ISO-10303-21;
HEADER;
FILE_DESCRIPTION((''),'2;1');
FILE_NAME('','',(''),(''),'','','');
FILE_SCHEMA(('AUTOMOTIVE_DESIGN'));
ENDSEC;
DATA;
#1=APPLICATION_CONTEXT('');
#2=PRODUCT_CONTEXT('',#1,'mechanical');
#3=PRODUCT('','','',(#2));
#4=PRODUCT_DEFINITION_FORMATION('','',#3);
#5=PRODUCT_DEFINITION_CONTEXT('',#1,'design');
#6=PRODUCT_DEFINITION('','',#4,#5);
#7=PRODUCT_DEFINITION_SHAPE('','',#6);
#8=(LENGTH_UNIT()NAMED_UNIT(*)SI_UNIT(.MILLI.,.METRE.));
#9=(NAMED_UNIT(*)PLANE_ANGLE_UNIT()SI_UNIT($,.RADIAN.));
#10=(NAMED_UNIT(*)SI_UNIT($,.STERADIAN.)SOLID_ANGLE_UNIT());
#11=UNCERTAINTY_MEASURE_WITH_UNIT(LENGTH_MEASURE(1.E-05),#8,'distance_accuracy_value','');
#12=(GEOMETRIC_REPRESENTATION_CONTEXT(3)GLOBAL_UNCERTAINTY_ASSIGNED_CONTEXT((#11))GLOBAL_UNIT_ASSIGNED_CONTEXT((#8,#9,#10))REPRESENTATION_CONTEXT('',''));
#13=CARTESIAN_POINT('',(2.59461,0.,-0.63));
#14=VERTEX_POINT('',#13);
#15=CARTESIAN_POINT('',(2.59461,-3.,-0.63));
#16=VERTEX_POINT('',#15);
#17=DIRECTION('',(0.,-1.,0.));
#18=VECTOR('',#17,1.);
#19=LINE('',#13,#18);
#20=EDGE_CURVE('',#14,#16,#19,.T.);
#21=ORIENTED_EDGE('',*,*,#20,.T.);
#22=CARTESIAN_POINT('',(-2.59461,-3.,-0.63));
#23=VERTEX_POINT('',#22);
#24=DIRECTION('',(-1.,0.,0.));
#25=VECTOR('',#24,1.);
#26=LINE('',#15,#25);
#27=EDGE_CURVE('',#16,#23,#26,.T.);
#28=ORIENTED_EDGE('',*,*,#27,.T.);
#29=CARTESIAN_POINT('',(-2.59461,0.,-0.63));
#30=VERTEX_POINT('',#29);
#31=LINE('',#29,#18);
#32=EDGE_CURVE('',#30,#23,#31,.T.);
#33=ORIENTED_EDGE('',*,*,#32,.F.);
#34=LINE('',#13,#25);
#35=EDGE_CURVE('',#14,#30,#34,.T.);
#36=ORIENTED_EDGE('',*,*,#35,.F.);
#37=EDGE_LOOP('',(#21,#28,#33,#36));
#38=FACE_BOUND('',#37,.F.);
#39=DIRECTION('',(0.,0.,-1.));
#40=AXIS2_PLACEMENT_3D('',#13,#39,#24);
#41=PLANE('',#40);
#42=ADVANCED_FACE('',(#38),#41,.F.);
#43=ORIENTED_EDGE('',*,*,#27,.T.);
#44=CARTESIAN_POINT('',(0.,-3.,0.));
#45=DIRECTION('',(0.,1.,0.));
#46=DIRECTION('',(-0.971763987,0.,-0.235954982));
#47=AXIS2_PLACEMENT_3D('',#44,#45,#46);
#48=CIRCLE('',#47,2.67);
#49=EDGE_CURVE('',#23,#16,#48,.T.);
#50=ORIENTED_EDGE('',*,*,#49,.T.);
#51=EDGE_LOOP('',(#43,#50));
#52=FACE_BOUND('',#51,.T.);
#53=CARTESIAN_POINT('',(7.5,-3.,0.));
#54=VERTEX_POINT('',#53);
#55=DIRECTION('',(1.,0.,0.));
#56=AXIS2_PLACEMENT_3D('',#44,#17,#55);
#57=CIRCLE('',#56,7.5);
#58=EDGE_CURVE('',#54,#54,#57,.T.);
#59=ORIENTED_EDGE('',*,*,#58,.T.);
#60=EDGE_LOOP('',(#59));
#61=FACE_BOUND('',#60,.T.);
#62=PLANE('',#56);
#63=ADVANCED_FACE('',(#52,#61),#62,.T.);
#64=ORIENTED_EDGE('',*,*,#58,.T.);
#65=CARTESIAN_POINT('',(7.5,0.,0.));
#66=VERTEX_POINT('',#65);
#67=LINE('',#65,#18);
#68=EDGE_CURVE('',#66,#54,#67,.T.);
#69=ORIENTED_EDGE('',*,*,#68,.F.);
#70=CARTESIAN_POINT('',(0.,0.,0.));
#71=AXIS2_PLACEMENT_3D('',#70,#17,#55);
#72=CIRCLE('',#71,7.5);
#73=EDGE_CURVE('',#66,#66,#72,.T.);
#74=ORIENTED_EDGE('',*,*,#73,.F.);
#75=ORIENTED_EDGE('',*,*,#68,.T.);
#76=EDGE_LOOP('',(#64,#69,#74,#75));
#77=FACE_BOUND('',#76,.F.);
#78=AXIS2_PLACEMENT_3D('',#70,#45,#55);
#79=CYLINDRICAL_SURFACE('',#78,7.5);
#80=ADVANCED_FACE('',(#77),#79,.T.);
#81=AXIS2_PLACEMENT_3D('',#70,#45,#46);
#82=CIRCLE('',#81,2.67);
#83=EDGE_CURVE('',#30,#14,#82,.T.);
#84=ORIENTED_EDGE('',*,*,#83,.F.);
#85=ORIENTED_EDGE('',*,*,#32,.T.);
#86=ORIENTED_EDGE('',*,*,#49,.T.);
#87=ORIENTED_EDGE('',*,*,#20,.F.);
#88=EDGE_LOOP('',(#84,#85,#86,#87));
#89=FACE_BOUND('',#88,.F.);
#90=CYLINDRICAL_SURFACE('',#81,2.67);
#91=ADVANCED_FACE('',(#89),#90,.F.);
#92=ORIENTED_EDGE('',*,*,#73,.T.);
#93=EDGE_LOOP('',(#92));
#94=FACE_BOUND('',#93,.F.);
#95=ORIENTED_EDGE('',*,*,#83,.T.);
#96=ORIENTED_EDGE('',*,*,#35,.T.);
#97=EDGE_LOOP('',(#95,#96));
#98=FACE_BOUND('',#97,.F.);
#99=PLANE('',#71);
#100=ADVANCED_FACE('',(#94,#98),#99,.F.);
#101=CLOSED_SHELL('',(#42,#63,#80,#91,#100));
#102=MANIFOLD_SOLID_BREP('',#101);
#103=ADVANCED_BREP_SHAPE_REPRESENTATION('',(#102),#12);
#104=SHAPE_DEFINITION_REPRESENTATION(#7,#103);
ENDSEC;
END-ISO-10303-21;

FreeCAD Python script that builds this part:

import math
import FreeCAD as App
import Part
import Sketcher
from FreeCAD import Vector

doc = App.newDocument("Part")
body = doc.addObject("PartDesign::Body", "Body")

# Sketch on XZ plane
sketch1 = body.newObject("Sketcher::SketchObject", "Sketch")
sketch1.AttachmentSupport = (doc.getObject("XZ_Plane"), [""])
sketch1.MapMode = "FlatFace"
sketch1.addGeometry([
    Part.Circle(Vector(0, 0, 0), Vector(0, 0, 1), 7.5),
    Part.ArcOfCircle(Part.Circle(Vector(0, 0, 0), Vector(0, 0, 1), 2.67), math.radians(-13.647922), math.radians(193.647922)),
    Part.LineSegment(Vector(2.59461, -0.63, 0), Vector(-2.59461, -0.63, 0)),
], False)
sketch1.addConstraint([
    Sketcher.Constraint("Coincident", 1, 1, 2, 1),
    Sketcher.Constraint("Coincident", 2, 2, 1, 2),
    Sketcher.Constraint("Horizontal", 2),
    Sketcher.Constraint("Coincident", 0, 3, -1, 1),
    Sketcher.Constraint("Coincident", 1, 3, -1, 1),
    Sketcher.Constraint("Diameter", 0, 15.0),
    Sketcher.Constraint("Radius", 1, 2.67),
    Sketcher.Constraint("DistanceY", 1, 1, -1, 1, 0.63),
])
pad1 = body.newObject("PartDesign::Pad", "Pad")
pad1.Profile = sketch1
pad1.Length = 3

doc.recompute()
